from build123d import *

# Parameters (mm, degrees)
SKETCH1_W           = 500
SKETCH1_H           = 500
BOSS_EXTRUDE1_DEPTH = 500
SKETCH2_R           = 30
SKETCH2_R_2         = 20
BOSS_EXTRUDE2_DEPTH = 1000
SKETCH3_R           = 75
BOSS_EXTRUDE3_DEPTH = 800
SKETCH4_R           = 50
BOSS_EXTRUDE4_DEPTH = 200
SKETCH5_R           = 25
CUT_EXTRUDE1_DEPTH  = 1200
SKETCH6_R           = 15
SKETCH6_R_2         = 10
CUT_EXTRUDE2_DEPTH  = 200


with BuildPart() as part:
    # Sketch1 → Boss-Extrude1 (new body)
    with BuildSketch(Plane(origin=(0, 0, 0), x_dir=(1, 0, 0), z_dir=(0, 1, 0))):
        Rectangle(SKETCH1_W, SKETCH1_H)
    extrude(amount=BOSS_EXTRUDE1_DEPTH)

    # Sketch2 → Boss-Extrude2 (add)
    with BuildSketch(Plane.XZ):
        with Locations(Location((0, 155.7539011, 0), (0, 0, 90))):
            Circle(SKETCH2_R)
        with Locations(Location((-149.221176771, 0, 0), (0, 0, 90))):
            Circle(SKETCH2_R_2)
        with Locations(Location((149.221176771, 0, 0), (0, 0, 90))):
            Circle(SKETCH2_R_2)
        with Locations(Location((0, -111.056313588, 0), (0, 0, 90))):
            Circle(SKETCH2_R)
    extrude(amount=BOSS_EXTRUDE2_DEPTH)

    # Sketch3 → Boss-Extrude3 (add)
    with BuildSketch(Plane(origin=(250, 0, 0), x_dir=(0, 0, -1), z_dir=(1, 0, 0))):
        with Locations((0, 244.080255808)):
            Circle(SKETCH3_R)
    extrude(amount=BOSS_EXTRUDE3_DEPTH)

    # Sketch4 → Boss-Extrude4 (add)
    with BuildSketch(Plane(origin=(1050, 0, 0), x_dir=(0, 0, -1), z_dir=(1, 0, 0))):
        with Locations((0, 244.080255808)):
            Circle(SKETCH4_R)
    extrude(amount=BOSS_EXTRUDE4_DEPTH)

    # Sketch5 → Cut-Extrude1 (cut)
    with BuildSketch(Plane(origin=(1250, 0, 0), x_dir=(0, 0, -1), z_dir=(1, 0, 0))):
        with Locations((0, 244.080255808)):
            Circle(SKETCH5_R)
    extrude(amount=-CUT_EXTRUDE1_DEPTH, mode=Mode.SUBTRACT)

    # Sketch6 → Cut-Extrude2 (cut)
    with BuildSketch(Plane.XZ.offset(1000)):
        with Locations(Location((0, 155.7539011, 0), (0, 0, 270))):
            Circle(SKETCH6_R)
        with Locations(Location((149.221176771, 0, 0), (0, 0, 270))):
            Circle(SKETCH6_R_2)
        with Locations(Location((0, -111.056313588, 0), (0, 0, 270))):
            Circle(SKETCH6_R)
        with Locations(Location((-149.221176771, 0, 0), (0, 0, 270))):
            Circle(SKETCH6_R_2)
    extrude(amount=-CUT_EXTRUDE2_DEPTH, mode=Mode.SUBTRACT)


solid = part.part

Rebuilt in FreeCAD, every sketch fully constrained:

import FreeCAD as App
import Part
import Sketcher

V = App.Vector

doc = App.newDocument("Part")
body = doc.addObject("PartDesign::Body", "Body")

# Sketch on XZ plane
sketch1 = body.newObject("Sketcher::SketchObject", "Sketch")
sketch1.AttachmentSupport = (doc.getObject("XZ_Plane"), [""])
sketch1.MapMode = "FlatFace"
sketch1.addGeometry([
    Part.LineSegment(V(-250, -250, 0), V(-250, 250, 0)),
    Part.LineSegment(V(-250, 250, 0), V(250, 250, 0)),
    Part.LineSegment(V(250, 250, 0), V(250, -250, 0)),
    Part.LineSegment(V(250, -250, 0), V(-250, -250, 0)),
], False)
sketch1.addConstraint([
    Sketcher.Constraint("Coincident", 0, 2, 1, 1),
    Sketcher.Constraint("Coincident", 1, 2, 2, 1),
    Sketcher.Constraint("Coincident", 2, 2, 3, 1),
    Sketcher.Constraint("Coincident", 3, 2, 0, 1),
    Sketcher.Constraint("Vertical", 0),
    Sketcher.Constraint("Horizontal", 1),
    Sketcher.Constraint("Vertical", 2),
    Sketcher.Constraint("Horizontal", 3),
    Sketcher.Constraint("Symmetric", 0, 2, 2, 2, -1, 1),
    Sketcher.Constraint("Equal", 3, 0),
    Sketcher.Constraint("DistanceX", 1, 1, 1, 2, 500.0),
])
pad1 = body.newObject("PartDesign::Pad", "Pad")
pad1.Profile = sketch1
pad1.Length = 500
pad1.Reversed = True

# Sketch on XZ plane
sketch2 = body.newObject("Sketcher::SketchObject", "Sketch001")
sketch2.AttachmentSupport = (doc.getObject("XZ_Plane"), [""])
sketch2.MapMode = "FlatFace"
sketch2.addGeometry([
    Part.Circle(V(0, 156, 0), V(0, 0, 1), 30),
    Part.Circle(V(-149, 0, 0), V(0, 0, 1), 20),
    Part.Circle(V(149, 0, 0), V(0, 0, 1), 20),
    Part.Circle(V(0, -111, 0), V(0, 0, 1), 30),
], False)
sketch2.addConstraint([
    Sketcher.Constraint("Equal", 1, 2),
    Sketcher.Constraint("Equal", 0, 3),
    Sketcher.Constraint("Symmetric", 1, 3, 2, 3, -1, 1),
    Sketcher.Constraint("PointOnObject", 0, 3, -2),
    Sketcher.Constraint("PointOnObject", 1, 3, -1),
    Sketcher.Constraint("PointOnObject", 3, 3, -2),
    Sketcher.Constraint("Diameter", 0, 60.0),
    Sketcher.Constraint("Diameter", 1, 40.0),
    Sketcher.Constraint("DistanceY", -1, 1, 0, 3, 155.753901),
    Sketcher.Constraint("DistanceX", 1, 3, -1, 1, 149.221177),
    Sketcher.Constraint("DistanceY", 3, 3, -1, 1, 111.056314),
])
pad2 = body.newObject("PartDesign::Pad", "Pad001")
pad2.Profile = sketch2
pad2.Length = 1000

# Sketch on YZ plane
sketch3 = body.newObject("Sketcher::SketchObject", "Sketch002")
sketch3.AttachmentSupport = (doc.getObject("YZ_Plane"), [""])
sketch3.MapMode = "FlatFace"
sketch3.AttachmentOffset = App.Placement(V(0, 0, 250), App.Rotation())
sketch3.addGeometry(Part.Circle(V(244, 0, 0), V(0, 0, 1), 75), False)
sketch3.addConstraint([
    Sketcher.Constraint("PointOnObject", 0, 3, -1),
    Sketcher.Constraint("Diameter", 0, 150.0),
    Sketcher.Constraint("DistanceX", -1, 1, 0, 3, 244.080256),
])
pad3 = body.newObject("PartDesign::Pad", "Pad002")
pad3.Profile = sketch3
pad3.Length = 800

# Sketch on YZ plane
sketch4 = body.newObject("Sketcher::SketchObject", "Sketch003")
sketch4.AttachmentSupport = (doc.getObject("YZ_Plane"), [""])
sketch4.MapMode = "FlatFace"
sketch4.AttachmentOffset = App.Placement(V(0, 0, 1050), App.Rotation())
sketch4.addGeometry(Part.Circle(V(244, 0, 0), V(0, 0, 1), 50), False)
sketch4.addConstraint([
    Sketcher.Constraint("PointOnObject", 0, 3, -1),
    Sketcher.Constraint("Diameter", 0, 100.0),
    Sketcher.Constraint("DistanceX", -1, 1, 0, 3, 244.080256),
])
pad4 = body.newObject("PartDesign::Pad", "Pad003")
pad4.Profile = sketch4
pad4.Length = 200

# Sketch on YZ plane
sketch5 = body.newObject("Sketcher::SketchObject", "Sketch004")
sketch5.AttachmentSupport = (doc.getObject("YZ_Plane"), [""])
sketch5.MapMode = "FlatFace"
sketch5.AttachmentOffset = App.Placement(V(0, 0, 1250), App.Rotation())
sketch5.addGeometry(Part.Circle(V(244, 0, 0), V(0, 0, 1), 25), False)
sketch5.addConstraint([
    Sketcher.Constraint("PointOnObject", 0, 3, -1),
    Sketcher.Constraint("Diameter", 0, 50.0),
    Sketcher.Constraint("DistanceX", -1, 1, 0, 3, 244.080256),
])
pocket1 = body.newObject("PartDesign::Pocket", "Pocket")
pocket1.Profile = sketch5
pocket1.Length = 1200

# Sketch on XZ plane
sketch6 = body.newObject("Sketcher::SketchObject", "Sketch005")
sketch6.AttachmentSupport = (doc.getObject("XZ_Plane"), [""])
sketch6.MapMode = "FlatFace"
sketch6.AttachmentOffset = App.Placement(V(0, 0, 1000), App.Rotation())
sketch6.addGeometry([
    Part.Circle(V(0, 156, 0), V(0, 0, 1), 15),
    Part.Circle(V(149, 0, 0), V(0, 0, 1), 10),
    Part.Circle(V(0, -111, 0), V(0, 0, 1), 15),
    Part.Circle(V(-149, 0, 0), V(0, 0, 1), 10),
], False)
sketch6.addConstraint([
    Sketcher.Constraint("Equal", 0, 2),
    Sketcher.Constraint("Equal", 1, 3),
    Sketcher.Constraint("Symmetric", 1, 3, 3, 3, -1, 1),
    Sketcher.Constraint("PointOnObject", 0, 3, -2),
    Sketcher.Constraint("PointOnObject", 1, 3, -1),
    Sketcher.Constraint("PointOnObject", 2, 3, -2),
    Sketcher.Constraint("Diameter", 0, 30.0),
    Sketcher.Constraint("Diameter", 1, 20.0),
    Sketcher.Constraint("DistanceY", -1, 1, 0, 3, 155.753901),
    Sketcher.Constraint("DistanceX", -1, 1, 1, 3, 149.221177),
    Sketcher.Constraint("DistanceY", 2, 3, -1, 1, 111.056314),
])
pocket2 = body.newObject("PartDesign::Pocket", "Pocket001")
pocket2.Profile = sketch6
pocket2.Length = 200

doc.recompute()
